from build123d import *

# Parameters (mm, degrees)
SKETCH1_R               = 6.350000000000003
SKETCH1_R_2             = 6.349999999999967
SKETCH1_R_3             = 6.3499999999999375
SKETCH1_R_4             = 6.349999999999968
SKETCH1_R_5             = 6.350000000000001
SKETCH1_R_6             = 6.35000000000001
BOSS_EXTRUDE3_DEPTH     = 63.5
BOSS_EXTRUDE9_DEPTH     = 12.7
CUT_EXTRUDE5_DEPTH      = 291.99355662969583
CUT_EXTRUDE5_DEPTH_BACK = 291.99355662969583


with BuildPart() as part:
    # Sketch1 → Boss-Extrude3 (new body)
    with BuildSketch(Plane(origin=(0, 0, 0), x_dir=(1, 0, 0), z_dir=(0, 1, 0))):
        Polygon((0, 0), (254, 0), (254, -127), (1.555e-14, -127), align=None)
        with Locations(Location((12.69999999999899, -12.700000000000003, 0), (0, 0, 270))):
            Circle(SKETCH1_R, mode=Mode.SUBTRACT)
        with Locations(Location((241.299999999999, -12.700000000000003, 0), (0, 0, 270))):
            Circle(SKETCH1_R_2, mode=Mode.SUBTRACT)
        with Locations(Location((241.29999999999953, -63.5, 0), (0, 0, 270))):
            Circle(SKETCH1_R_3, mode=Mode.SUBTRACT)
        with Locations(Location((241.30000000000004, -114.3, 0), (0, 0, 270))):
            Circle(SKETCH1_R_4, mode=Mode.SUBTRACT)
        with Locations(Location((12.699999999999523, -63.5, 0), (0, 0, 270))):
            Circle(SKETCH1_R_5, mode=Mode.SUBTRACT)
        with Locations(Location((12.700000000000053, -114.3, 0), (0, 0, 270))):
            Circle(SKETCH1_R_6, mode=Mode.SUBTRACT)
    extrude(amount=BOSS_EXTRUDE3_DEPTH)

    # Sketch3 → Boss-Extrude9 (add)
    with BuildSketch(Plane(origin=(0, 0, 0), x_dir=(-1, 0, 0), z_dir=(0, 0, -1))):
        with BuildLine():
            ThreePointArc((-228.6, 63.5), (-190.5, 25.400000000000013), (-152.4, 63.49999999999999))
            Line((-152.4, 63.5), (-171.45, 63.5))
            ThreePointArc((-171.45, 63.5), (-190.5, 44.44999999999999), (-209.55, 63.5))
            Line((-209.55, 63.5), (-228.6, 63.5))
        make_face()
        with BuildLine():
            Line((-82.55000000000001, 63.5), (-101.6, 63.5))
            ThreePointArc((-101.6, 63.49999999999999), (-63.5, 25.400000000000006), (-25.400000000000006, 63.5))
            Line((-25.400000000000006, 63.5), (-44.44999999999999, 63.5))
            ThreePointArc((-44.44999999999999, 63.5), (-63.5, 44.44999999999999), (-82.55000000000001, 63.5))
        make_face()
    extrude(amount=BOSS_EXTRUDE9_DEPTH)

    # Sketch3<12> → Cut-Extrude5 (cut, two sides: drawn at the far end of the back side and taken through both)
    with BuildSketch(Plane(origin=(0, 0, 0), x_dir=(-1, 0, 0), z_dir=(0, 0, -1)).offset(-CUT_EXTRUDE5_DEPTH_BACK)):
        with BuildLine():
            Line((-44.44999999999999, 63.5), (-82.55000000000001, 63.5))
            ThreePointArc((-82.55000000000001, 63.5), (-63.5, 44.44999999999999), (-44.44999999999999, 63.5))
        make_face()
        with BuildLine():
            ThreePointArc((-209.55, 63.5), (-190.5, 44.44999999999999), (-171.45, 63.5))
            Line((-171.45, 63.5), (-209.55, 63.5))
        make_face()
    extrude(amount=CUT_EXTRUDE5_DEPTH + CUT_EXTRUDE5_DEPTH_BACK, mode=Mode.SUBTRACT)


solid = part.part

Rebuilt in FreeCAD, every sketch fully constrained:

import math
import FreeCAD as App
import Part
import Sketcher
from FreeCAD import Vector
Q = App.Units.Quantity


def add_polygon(sketch, points):
    """Adds a closed chain of lines whose ends are joined by coincident constraints."""
    first, n = sketch.GeometryCount, len(points)
    for a, b in zip(points, points[1:] + points[:1]):
        sketch.addGeometry(Part.LineSegment(App.Vector(*a, 0), App.Vector(*b, 0)), False)
    for i in range(n):
        sketch.addConstraint(Sketcher.Constraint("Coincident", first + i, 2, first + (i + 1) % n, 1))

doc = App.newDocument("Part")
body = doc.addObject("PartDesign::Body", "Body")

# Sketch on XZ plane
sketch1 = body.newObject("Sketcher::SketchObject", "Sketch")
sketch1.AttachmentSupport = (doc.getObject("XZ_Plane"), [""])
sketch1.MapMode = "FlatFace"
add_polygon(sketch1, [(254, 0), (0, 0), (0, 127), (254, 127)])  # lines 0-3
sketch1.addGeometry(Part.Circle(Vector(241, 114, 0), Vector(0, 0, 1), 6), False)  # 4
sketch1.addGeometry(Part.Circle(Vector(13, 114, 0), Vector(0, 0, 1), 6), False)  # 5
sketch1.addGeometry(Part.Circle(Vector(241, 64, 0), Vector(0, 0, 1), 6), False)  # 6
sketch1.addGeometry(Part.Circle(Vector(241, 13, 0), Vector(0, 0, 1), 6), False)  # 7
sketch1.addGeometry(Part.Circle(Vector(13, 64, 0), Vector(0, 0, 1), 6), False)  # 8
sketch1.addGeometry(Part.Circle(Vector(13, 13, 0), Vector(0, 0, 1), 6), False)  # 9
sketch1.addConstraint([
    Sketcher.Constraint("Horizontal", 0),
    Sketcher.Constraint("Vertical", 1),
    Sketcher.Constraint("Horizontal", 2),
    Sketcher.Constraint("Vertical", 3),
    Sketcher.Constraint("Coincident", 0, 2, -1, 1),
    Sketcher.Constraint("Equal", 4, 5),
    Sketcher.Constraint("Equal", 5, 6),
    Sketcher.Constraint("Equal", 6, 7),
    Sketcher.Constraint("Equal", 7, 8),
    Sketcher.Constraint("Equal", 8, 9),
    Sketcher.Constraint("Horizontal", 4, 3, 5, 3),
    Sketcher.Constraint("Horizontal", 6, 3, 8, 3),
    Sketcher.Constraint("Horizontal", 7, 3, 9, 3),
    Sketcher.Constraint("Vertical", 4, 3, 6, 3),
    Sketcher.Constraint("Vertical", 6, 3, 7, 3),
    Sketcher.Constraint("Vertical", 5, 3, 8, 3),
    Sketcher.Constraint("Vertical", 8, 3, 9, 3),
    Sketcher.Constraint("Diameter", 4, Q("0.5 in")),
    Sketcher.Constraint("DistanceX", 0, 2, 0, 1, Q("10 in")),
    Sketcher.Constraint("DistanceY", 1, 1, 1, 2, Q("5 in")),
    Sketcher.Constraint("DistanceX", 5, 3, 4, 3, Q("9 in")),
    Sketcher.Constraint("DistanceY", 6, 3, 4, 3, Q("2 in")),
    Sketcher.Constraint("DistanceY", 7, 3, 6, 3, Q("2 in")),
    Sketcher.Constraint("DistanceX", -1, 1, 4, 3, Q("9.5 in")),
    Sketcher.Constraint("DistanceY", -1, 1, 4, 3, Q("4.5 in")),
])
pad1 = body.newObject("PartDesign::Pad", "Pad")
pad1.Profile = sketch1
pad1.Length = Q("2.5 in")
pad1.Reversed = True

# Sketch on XY plane
sketch2 = body.newObject("Sketcher::SketchObject", "Sketch001")
sketch2.AttachmentSupport = (doc.getObject("XY_Plane"), [""])
sketch2.MapMode = "FlatFace"
sketch2.addGeometry([
    Part.ArcOfCircle(Part.Circle(Vector(190, 64, 0), Vector(0, 0, 1), 38), math.radians(180), math.radians(360)),  # 0
    Part.LineSegment(Vector(152, 64, 0), Vector(171, 64, 0)),  # 1
    Part.ArcOfCircle(Part.Circle(Vector(190, 64, 0), Vector(0, 0, 1), 19), math.radians(180), math.radians(360)),  # 2
    Part.LineSegment(Vector(210, 64, 0), Vector(229, 64, 0)),  # 3
    Part.LineSegment(Vector(83, 64, 0), Vector(102, 64, 0)),  # 4
    Part.ArcOfCircle(Part.Circle(Vector(64, 64, 0), Vector(0, 0, 1), 38), math.radians(180), math.radians(360)),  # 5
    Part.LineSegment(Vector(25, 64, 0), Vector(44, 64, 0)),  # 6
    Part.ArcOfCircle(Part.Circle(Vector(64, 64, 0), Vector(0, 0, 1), 19), math.radians(180), math.radians(360)),  # 7
], False)
sketch2.addConstraint([
    Sketcher.Constraint("Coincident", 0, 1, 1, 1),
    Sketcher.Constraint("Coincident", 1, 2, 2, 1),
    Sketcher.Constraint("Coincident", 2, 2, 3, 1),
    Sketcher.Constraint("Coincident", 3, 2, 0, 2),
    Sketcher.Constraint("Coincident", 4, 2, 5, 2),
    Sketcher.Constraint("Coincident", 5, 1, 6, 1),
    Sketcher.Constraint("Coincident", 6, 2, 7, 1),
    Sketcher.Constraint("Coincident", 7, 2, 4, 1),
    Sketcher.Constraint("Horizontal", 1),
    Sketcher.Constraint("Horizontal", 3),
    Sketcher.Constraint("Horizontal", 4),
    Sketcher.Constraint("Horizontal", 6),
    Sketcher.Constraint("Coincident", 2, 3, 0, 3),
    Sketcher.Constraint("Coincident", 7, 3, 5, 3),
    Sketcher.Constraint("Equal", 0, 5),
    Sketcher.Constraint("Equal", 2, 7),
    Sketcher.Constraint("Horizontal", 2, 3, 5, 3),
    Sketcher.Constraint("Horizontal", 7, 3, 0, 1),
    Sketcher.Constraint("Horizontal", 1, 2, 2, 2),
    Sketcher.Constraint("Horizontal", 3, 2, 4, 2),
    Sketcher.Constraint("Horizontal", 4, 2, 5, 1),
    Sketcher.Constraint("Radius", 0, Q("1.5 in")),
    Sketcher.Constraint("Radius", 2, Q("0.75 in")),
    Sketcher.Constraint("DistanceX", -1, 1, 0, 1, Q("6 in")),
    Sketcher.Constraint("DistanceX", -1, 1, 4, 2, Q("4 in")),
    Sketcher.Constraint("DistanceY", -1, 1, 0, 3, Q("2.5 in")),
])
pad2 = body.newObject("PartDesign::Pad", "Pad001")
pad2.Profile = sketch2
pad2.Length = Q("0.5 in")
pad2.Reversed = True

# Sketch on XY plane
sketch3 = body.newObject("Sketcher::SketchObject", "Sketch002")
sketch3.AttachmentSupport = (doc.getObject("XY_Plane"), [""])
sketch3.MapMode = "FlatFace"
sketch3.addGeometry([
    Part.LineSegment(Vector(44, 64, 0), Vector(83, 64, 0)),
    Part.ArcOfCircle(Part.Circle(Vector(64, 64, 0), Vector(0, 0, 1), 19), math.radians(180), math.radians(360)),
    Part.ArcOfCircle(Part.Circle(Vector(190, 64, 0), Vector(0, 0, 1), 19), math.radians(180), math.radians(360)),
    Part.LineSegment(Vector(171, 64, 0), Vector(210, 64, 0)),
], False)
sketch3.addConstraint([
    Sketcher.Constraint("Coincident", 0, 1, 1, 1),
    Sketcher.Constraint("Coincident", 1, 2, 0, 2),
    Sketcher.Constraint("Coincident", 2, 1, 3, 1),
    Sketcher.Constraint("Coincident", 3, 2, 2, 2),
    Sketcher.Constraint("Horizontal", 0),
    Sketcher.Constraint("Horizontal", 3),
    Sketcher.Constraint("Equal", 1, 2),
    Sketcher.Constraint("Horizontal", 1, 3, 2, 3),
    Sketcher.Constraint("Horizontal", 2, 3, 0, 1),
    Sketcher.Constraint("Horizontal", 1, 2, 2, 1),
    Sketcher.Constraint("Radius", 1, Q("0.75 in")),
    Sketcher.Constraint("DistanceX", 1, 3, 2, 3, Q("5 in")),
    Sketcher.Constraint("DistanceX", -1, 1, 1, 3, Q("2.5 in")),
    Sketcher.Constraint("DistanceY", -1, 1, 1, 3, Q("2.5 in")),
])
pocket1 = body.newObject("PartDesign::Pocket", "Pocket")
pocket1.Profile = sketch3
pocket1.Type = "ThroughAll"
pocket1.Midplane = True

doc.recompute()
